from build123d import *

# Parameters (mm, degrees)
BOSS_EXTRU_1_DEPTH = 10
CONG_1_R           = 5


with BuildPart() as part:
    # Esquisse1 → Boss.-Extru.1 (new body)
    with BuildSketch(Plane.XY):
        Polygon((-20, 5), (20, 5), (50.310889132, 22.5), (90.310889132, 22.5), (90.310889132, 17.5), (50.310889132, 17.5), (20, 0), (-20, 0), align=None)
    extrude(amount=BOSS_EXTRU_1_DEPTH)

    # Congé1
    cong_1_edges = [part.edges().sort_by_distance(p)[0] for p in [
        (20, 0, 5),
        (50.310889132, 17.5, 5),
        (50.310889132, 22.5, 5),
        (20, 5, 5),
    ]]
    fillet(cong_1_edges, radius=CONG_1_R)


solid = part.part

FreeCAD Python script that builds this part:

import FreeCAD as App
import Part
import Sketcher
from FreeCAD import Vector
Q = App.Units.Quantity


def edges_at(feature, points):
    """Names of the edges that pass closest to the given points."""
    edges = feature.Shape.Edges
    near = lambda p: min(range(len(edges)), key=lambda i: edges[i].distToShape(Part.Vertex(*p))[0])
    return sorted({f"Edge{near(p) + 1}" for p in points})


def add_polygon(sketch, points):
    """Adds a closed chain of lines whose ends are joined by coincident constraints."""
    first, n = sketch.GeometryCount, len(points)
    for a, b in zip(points, points[1:] + points[:1]):
        sketch.addGeometry(Part.LineSegment(App.Vector(*a, 0), App.Vector(*b, 0)), False)
    for i in range(n):
        sketch.addConstraint(Sketcher.Constraint("Coincident", first + i, 2, first + (i + 1) % n, 1))

doc = App.newDocument("Part")
body = doc.addObject("PartDesign::Body", "Body")

# Sketch on XY plane
sketch1 = body.newObject("Sketcher::SketchObject", "Sketch")
sketch1.AttachmentSupport = (doc.getObject("XY_Plane"), [""])
sketch1.MapMode = "FlatFace"
add_polygon(sketch1, [(20, 5), (-20, 5), (-20, 0), (20, 0), (50, 18), (90, 18), (90, 22), (50, 22)])  # lines 0-7
sketch1.addConstraint([
    Sketcher.Constraint("Horizontal", 0),
    Sketcher.Constraint("Vertical", 1),
    Sketcher.Constraint("Horizontal", 2),
    Sketcher.Constraint("Horizontal", 4),
    Sketcher.Constraint("Vertical", 5),
    Sketcher.Constraint("Horizontal", 6),
    Sketcher.Constraint("Symmetric", 1, 2, 2, 2, -1, 1),
    Sketcher.Constraint("Parallel", 3, 7),
    Sketcher.Constraint("Vertical", 3, 2, 6, 2),
    Sketcher.Constraint("Vertical", 2, 2, 7, 2),
    Sketcher.Constraint("Equal", 2, 4),
    Sketcher.Constraint("DistanceX", 0, 2, 0, 1, 40.0),
    Sketcher.Constraint("DistanceY", 1, 2, 1, 1, 5.0),
    Sketcher.Constraint("Angle", 3, Q("30 deg")),
    Sketcher.Constraint("Distance", 3, 35.0),
])
pad1 = body.newObject("PartDesign::Pad", "Pad")
pad1.Profile = sketch1
pad1.Length = 10
doc.recompute()

fillet = body.newObject("PartDesign::Fillet", "Fillet")
fillet.Base = (pad1, edges_at(pad1, [
    (20, 0, 5),
    (50.311, 17.5, 5),
    (50.311, 22.5, 5),
    (20, 5, 5),
]))
fillet.Radius = 5

doc.recompute()
